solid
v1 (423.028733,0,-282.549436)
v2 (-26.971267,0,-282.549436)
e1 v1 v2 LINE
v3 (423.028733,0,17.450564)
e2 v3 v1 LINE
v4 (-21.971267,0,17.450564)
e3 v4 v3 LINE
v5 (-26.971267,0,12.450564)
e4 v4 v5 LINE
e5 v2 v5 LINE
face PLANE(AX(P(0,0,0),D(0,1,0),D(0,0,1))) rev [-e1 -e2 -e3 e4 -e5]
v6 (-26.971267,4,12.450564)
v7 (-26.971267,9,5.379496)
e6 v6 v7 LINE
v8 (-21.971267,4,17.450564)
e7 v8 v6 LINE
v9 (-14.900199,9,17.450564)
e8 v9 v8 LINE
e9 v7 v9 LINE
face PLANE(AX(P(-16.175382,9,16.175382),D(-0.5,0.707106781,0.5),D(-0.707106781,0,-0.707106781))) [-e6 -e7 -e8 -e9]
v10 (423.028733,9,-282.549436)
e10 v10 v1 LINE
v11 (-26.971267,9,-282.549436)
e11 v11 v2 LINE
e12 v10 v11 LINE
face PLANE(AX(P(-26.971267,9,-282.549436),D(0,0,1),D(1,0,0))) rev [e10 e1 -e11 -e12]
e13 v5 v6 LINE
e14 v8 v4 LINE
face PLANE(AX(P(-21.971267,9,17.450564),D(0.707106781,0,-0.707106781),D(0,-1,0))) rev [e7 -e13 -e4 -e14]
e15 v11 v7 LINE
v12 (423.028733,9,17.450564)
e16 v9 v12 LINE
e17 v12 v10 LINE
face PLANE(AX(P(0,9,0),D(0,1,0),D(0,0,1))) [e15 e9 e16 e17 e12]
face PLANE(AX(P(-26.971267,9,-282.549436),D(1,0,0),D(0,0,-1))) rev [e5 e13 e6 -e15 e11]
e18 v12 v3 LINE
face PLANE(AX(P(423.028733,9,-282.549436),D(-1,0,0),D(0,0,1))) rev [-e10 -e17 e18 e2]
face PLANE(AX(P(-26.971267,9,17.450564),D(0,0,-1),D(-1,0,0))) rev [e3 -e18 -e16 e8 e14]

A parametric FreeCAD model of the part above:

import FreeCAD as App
import Part
import Sketcher
from FreeCAD import Vector


def edges_at(feature, points):
    """Names of the edges that pass closest to the given points."""
    edges = feature.Shape.Edges
    near = lambda p: min(range(len(edges)), key=lambda i: edges[i].distToShape(Part.Vertex(*p))[0])
    return sorted({f"Edge{near(p) + 1}" for p in points})


def add_polygon(sketch, points):
    """Adds a closed chain of lines whose ends are joined by coincident constraints."""
    first, n = sketch.GeometryCount, len(points)
    for a, b in zip(points, points[1:] + points[:1]):
        sketch.addGeometry(Part.LineSegment(App.Vector(*a, 0), App.Vector(*b, 0)), False)
    for i in range(n):
        sketch.addConstraint(Sketcher.Constraint("Coincident", first + i, 2, first + (i + 1) % n, 1))

doc = App.newDocument("Part")
params = doc.addObject("Spreadsheet::Sheet", "Params")
for row, (alias, value) in enumerate([
    ("sketch1_width", "450 mm"),
    ("sketch1_height", "300 mm"),
    ("pad1_length", "9 mm"),
    ("chamfer_size", "5 mm"),
    ("chamfer2_size", "5 mm"),
], start=1):
    params.set(f"A{row}", alias)
    params.set(f"B{row}", "=" + value)
    params.setAlias(f"B{row}", alias)

body = doc.addObject("PartDesign::Body", "Body")

sketch1 = body.newObject("Sketcher::SketchObject", "Sketch")
sketch1.AttachmentSupport = (doc.getObject("XZ_Plane"), [""])
sketch1.MapMode = "FlatFace"
add_polygon(sketch1, [(-27, -283), (-27, 17), (423, 17), (423, -283)])
sketch1.addConstraint(Sketcher.Constraint("Vertical", 0))
sketch1.addConstraint(Sketcher.Constraint("Horizontal", 1))
sketch1.addConstraint(Sketcher.Constraint("Vertical", 2))
sketch1.addConstraint(Sketcher.Constraint("Horizontal", 3))
sketch1.addConstraint(Sketcher.Constraint("DistanceX", 1, 1, 1, 2, 450.0))
sketch1.addConstraint(Sketcher.Constraint("DistanceY", 0, 1, 0, 2, 300.0))
sketch1.addConstraint(Sketcher.Constraint("DistanceX", 0, 2, -1, 1, 26.971267))
sketch1.addConstraint(Sketcher.Constraint("DistanceY", -1, 1, 0, 2, 17.450564))
sketch1.setExpression("Constraints[8]", "Params.sketch1_width")
sketch1.setExpression("Constraints[9]", "Params.sketch1_height")
pad1 = body.newObject("PartDesign::Pad", "Pad")
pad1.Profile = sketch1
pad1.setExpression("Length", "Params.pad1_length")
pad1.Reversed = True
doc.recompute()

chamfer = body.newObject("PartDesign::Chamfer", "Chamfer")
chamfer.Base = (pad1, edges_at(pad1, [(-26.971, 4.5, 17.451)]))
chamfer.setExpression("Size", "Params.chamfer_size")
doc.recompute()

chamfer2 = body.newObject("PartDesign::Chamfer", "Chamfer001")
chamfer2.Base = (chamfer, edges_at(chamfer, [(-24.471, 9, 14.951)]))
chamfer2.setExpression("Size", "Params.chamfer2_size")

doc.recompute()
